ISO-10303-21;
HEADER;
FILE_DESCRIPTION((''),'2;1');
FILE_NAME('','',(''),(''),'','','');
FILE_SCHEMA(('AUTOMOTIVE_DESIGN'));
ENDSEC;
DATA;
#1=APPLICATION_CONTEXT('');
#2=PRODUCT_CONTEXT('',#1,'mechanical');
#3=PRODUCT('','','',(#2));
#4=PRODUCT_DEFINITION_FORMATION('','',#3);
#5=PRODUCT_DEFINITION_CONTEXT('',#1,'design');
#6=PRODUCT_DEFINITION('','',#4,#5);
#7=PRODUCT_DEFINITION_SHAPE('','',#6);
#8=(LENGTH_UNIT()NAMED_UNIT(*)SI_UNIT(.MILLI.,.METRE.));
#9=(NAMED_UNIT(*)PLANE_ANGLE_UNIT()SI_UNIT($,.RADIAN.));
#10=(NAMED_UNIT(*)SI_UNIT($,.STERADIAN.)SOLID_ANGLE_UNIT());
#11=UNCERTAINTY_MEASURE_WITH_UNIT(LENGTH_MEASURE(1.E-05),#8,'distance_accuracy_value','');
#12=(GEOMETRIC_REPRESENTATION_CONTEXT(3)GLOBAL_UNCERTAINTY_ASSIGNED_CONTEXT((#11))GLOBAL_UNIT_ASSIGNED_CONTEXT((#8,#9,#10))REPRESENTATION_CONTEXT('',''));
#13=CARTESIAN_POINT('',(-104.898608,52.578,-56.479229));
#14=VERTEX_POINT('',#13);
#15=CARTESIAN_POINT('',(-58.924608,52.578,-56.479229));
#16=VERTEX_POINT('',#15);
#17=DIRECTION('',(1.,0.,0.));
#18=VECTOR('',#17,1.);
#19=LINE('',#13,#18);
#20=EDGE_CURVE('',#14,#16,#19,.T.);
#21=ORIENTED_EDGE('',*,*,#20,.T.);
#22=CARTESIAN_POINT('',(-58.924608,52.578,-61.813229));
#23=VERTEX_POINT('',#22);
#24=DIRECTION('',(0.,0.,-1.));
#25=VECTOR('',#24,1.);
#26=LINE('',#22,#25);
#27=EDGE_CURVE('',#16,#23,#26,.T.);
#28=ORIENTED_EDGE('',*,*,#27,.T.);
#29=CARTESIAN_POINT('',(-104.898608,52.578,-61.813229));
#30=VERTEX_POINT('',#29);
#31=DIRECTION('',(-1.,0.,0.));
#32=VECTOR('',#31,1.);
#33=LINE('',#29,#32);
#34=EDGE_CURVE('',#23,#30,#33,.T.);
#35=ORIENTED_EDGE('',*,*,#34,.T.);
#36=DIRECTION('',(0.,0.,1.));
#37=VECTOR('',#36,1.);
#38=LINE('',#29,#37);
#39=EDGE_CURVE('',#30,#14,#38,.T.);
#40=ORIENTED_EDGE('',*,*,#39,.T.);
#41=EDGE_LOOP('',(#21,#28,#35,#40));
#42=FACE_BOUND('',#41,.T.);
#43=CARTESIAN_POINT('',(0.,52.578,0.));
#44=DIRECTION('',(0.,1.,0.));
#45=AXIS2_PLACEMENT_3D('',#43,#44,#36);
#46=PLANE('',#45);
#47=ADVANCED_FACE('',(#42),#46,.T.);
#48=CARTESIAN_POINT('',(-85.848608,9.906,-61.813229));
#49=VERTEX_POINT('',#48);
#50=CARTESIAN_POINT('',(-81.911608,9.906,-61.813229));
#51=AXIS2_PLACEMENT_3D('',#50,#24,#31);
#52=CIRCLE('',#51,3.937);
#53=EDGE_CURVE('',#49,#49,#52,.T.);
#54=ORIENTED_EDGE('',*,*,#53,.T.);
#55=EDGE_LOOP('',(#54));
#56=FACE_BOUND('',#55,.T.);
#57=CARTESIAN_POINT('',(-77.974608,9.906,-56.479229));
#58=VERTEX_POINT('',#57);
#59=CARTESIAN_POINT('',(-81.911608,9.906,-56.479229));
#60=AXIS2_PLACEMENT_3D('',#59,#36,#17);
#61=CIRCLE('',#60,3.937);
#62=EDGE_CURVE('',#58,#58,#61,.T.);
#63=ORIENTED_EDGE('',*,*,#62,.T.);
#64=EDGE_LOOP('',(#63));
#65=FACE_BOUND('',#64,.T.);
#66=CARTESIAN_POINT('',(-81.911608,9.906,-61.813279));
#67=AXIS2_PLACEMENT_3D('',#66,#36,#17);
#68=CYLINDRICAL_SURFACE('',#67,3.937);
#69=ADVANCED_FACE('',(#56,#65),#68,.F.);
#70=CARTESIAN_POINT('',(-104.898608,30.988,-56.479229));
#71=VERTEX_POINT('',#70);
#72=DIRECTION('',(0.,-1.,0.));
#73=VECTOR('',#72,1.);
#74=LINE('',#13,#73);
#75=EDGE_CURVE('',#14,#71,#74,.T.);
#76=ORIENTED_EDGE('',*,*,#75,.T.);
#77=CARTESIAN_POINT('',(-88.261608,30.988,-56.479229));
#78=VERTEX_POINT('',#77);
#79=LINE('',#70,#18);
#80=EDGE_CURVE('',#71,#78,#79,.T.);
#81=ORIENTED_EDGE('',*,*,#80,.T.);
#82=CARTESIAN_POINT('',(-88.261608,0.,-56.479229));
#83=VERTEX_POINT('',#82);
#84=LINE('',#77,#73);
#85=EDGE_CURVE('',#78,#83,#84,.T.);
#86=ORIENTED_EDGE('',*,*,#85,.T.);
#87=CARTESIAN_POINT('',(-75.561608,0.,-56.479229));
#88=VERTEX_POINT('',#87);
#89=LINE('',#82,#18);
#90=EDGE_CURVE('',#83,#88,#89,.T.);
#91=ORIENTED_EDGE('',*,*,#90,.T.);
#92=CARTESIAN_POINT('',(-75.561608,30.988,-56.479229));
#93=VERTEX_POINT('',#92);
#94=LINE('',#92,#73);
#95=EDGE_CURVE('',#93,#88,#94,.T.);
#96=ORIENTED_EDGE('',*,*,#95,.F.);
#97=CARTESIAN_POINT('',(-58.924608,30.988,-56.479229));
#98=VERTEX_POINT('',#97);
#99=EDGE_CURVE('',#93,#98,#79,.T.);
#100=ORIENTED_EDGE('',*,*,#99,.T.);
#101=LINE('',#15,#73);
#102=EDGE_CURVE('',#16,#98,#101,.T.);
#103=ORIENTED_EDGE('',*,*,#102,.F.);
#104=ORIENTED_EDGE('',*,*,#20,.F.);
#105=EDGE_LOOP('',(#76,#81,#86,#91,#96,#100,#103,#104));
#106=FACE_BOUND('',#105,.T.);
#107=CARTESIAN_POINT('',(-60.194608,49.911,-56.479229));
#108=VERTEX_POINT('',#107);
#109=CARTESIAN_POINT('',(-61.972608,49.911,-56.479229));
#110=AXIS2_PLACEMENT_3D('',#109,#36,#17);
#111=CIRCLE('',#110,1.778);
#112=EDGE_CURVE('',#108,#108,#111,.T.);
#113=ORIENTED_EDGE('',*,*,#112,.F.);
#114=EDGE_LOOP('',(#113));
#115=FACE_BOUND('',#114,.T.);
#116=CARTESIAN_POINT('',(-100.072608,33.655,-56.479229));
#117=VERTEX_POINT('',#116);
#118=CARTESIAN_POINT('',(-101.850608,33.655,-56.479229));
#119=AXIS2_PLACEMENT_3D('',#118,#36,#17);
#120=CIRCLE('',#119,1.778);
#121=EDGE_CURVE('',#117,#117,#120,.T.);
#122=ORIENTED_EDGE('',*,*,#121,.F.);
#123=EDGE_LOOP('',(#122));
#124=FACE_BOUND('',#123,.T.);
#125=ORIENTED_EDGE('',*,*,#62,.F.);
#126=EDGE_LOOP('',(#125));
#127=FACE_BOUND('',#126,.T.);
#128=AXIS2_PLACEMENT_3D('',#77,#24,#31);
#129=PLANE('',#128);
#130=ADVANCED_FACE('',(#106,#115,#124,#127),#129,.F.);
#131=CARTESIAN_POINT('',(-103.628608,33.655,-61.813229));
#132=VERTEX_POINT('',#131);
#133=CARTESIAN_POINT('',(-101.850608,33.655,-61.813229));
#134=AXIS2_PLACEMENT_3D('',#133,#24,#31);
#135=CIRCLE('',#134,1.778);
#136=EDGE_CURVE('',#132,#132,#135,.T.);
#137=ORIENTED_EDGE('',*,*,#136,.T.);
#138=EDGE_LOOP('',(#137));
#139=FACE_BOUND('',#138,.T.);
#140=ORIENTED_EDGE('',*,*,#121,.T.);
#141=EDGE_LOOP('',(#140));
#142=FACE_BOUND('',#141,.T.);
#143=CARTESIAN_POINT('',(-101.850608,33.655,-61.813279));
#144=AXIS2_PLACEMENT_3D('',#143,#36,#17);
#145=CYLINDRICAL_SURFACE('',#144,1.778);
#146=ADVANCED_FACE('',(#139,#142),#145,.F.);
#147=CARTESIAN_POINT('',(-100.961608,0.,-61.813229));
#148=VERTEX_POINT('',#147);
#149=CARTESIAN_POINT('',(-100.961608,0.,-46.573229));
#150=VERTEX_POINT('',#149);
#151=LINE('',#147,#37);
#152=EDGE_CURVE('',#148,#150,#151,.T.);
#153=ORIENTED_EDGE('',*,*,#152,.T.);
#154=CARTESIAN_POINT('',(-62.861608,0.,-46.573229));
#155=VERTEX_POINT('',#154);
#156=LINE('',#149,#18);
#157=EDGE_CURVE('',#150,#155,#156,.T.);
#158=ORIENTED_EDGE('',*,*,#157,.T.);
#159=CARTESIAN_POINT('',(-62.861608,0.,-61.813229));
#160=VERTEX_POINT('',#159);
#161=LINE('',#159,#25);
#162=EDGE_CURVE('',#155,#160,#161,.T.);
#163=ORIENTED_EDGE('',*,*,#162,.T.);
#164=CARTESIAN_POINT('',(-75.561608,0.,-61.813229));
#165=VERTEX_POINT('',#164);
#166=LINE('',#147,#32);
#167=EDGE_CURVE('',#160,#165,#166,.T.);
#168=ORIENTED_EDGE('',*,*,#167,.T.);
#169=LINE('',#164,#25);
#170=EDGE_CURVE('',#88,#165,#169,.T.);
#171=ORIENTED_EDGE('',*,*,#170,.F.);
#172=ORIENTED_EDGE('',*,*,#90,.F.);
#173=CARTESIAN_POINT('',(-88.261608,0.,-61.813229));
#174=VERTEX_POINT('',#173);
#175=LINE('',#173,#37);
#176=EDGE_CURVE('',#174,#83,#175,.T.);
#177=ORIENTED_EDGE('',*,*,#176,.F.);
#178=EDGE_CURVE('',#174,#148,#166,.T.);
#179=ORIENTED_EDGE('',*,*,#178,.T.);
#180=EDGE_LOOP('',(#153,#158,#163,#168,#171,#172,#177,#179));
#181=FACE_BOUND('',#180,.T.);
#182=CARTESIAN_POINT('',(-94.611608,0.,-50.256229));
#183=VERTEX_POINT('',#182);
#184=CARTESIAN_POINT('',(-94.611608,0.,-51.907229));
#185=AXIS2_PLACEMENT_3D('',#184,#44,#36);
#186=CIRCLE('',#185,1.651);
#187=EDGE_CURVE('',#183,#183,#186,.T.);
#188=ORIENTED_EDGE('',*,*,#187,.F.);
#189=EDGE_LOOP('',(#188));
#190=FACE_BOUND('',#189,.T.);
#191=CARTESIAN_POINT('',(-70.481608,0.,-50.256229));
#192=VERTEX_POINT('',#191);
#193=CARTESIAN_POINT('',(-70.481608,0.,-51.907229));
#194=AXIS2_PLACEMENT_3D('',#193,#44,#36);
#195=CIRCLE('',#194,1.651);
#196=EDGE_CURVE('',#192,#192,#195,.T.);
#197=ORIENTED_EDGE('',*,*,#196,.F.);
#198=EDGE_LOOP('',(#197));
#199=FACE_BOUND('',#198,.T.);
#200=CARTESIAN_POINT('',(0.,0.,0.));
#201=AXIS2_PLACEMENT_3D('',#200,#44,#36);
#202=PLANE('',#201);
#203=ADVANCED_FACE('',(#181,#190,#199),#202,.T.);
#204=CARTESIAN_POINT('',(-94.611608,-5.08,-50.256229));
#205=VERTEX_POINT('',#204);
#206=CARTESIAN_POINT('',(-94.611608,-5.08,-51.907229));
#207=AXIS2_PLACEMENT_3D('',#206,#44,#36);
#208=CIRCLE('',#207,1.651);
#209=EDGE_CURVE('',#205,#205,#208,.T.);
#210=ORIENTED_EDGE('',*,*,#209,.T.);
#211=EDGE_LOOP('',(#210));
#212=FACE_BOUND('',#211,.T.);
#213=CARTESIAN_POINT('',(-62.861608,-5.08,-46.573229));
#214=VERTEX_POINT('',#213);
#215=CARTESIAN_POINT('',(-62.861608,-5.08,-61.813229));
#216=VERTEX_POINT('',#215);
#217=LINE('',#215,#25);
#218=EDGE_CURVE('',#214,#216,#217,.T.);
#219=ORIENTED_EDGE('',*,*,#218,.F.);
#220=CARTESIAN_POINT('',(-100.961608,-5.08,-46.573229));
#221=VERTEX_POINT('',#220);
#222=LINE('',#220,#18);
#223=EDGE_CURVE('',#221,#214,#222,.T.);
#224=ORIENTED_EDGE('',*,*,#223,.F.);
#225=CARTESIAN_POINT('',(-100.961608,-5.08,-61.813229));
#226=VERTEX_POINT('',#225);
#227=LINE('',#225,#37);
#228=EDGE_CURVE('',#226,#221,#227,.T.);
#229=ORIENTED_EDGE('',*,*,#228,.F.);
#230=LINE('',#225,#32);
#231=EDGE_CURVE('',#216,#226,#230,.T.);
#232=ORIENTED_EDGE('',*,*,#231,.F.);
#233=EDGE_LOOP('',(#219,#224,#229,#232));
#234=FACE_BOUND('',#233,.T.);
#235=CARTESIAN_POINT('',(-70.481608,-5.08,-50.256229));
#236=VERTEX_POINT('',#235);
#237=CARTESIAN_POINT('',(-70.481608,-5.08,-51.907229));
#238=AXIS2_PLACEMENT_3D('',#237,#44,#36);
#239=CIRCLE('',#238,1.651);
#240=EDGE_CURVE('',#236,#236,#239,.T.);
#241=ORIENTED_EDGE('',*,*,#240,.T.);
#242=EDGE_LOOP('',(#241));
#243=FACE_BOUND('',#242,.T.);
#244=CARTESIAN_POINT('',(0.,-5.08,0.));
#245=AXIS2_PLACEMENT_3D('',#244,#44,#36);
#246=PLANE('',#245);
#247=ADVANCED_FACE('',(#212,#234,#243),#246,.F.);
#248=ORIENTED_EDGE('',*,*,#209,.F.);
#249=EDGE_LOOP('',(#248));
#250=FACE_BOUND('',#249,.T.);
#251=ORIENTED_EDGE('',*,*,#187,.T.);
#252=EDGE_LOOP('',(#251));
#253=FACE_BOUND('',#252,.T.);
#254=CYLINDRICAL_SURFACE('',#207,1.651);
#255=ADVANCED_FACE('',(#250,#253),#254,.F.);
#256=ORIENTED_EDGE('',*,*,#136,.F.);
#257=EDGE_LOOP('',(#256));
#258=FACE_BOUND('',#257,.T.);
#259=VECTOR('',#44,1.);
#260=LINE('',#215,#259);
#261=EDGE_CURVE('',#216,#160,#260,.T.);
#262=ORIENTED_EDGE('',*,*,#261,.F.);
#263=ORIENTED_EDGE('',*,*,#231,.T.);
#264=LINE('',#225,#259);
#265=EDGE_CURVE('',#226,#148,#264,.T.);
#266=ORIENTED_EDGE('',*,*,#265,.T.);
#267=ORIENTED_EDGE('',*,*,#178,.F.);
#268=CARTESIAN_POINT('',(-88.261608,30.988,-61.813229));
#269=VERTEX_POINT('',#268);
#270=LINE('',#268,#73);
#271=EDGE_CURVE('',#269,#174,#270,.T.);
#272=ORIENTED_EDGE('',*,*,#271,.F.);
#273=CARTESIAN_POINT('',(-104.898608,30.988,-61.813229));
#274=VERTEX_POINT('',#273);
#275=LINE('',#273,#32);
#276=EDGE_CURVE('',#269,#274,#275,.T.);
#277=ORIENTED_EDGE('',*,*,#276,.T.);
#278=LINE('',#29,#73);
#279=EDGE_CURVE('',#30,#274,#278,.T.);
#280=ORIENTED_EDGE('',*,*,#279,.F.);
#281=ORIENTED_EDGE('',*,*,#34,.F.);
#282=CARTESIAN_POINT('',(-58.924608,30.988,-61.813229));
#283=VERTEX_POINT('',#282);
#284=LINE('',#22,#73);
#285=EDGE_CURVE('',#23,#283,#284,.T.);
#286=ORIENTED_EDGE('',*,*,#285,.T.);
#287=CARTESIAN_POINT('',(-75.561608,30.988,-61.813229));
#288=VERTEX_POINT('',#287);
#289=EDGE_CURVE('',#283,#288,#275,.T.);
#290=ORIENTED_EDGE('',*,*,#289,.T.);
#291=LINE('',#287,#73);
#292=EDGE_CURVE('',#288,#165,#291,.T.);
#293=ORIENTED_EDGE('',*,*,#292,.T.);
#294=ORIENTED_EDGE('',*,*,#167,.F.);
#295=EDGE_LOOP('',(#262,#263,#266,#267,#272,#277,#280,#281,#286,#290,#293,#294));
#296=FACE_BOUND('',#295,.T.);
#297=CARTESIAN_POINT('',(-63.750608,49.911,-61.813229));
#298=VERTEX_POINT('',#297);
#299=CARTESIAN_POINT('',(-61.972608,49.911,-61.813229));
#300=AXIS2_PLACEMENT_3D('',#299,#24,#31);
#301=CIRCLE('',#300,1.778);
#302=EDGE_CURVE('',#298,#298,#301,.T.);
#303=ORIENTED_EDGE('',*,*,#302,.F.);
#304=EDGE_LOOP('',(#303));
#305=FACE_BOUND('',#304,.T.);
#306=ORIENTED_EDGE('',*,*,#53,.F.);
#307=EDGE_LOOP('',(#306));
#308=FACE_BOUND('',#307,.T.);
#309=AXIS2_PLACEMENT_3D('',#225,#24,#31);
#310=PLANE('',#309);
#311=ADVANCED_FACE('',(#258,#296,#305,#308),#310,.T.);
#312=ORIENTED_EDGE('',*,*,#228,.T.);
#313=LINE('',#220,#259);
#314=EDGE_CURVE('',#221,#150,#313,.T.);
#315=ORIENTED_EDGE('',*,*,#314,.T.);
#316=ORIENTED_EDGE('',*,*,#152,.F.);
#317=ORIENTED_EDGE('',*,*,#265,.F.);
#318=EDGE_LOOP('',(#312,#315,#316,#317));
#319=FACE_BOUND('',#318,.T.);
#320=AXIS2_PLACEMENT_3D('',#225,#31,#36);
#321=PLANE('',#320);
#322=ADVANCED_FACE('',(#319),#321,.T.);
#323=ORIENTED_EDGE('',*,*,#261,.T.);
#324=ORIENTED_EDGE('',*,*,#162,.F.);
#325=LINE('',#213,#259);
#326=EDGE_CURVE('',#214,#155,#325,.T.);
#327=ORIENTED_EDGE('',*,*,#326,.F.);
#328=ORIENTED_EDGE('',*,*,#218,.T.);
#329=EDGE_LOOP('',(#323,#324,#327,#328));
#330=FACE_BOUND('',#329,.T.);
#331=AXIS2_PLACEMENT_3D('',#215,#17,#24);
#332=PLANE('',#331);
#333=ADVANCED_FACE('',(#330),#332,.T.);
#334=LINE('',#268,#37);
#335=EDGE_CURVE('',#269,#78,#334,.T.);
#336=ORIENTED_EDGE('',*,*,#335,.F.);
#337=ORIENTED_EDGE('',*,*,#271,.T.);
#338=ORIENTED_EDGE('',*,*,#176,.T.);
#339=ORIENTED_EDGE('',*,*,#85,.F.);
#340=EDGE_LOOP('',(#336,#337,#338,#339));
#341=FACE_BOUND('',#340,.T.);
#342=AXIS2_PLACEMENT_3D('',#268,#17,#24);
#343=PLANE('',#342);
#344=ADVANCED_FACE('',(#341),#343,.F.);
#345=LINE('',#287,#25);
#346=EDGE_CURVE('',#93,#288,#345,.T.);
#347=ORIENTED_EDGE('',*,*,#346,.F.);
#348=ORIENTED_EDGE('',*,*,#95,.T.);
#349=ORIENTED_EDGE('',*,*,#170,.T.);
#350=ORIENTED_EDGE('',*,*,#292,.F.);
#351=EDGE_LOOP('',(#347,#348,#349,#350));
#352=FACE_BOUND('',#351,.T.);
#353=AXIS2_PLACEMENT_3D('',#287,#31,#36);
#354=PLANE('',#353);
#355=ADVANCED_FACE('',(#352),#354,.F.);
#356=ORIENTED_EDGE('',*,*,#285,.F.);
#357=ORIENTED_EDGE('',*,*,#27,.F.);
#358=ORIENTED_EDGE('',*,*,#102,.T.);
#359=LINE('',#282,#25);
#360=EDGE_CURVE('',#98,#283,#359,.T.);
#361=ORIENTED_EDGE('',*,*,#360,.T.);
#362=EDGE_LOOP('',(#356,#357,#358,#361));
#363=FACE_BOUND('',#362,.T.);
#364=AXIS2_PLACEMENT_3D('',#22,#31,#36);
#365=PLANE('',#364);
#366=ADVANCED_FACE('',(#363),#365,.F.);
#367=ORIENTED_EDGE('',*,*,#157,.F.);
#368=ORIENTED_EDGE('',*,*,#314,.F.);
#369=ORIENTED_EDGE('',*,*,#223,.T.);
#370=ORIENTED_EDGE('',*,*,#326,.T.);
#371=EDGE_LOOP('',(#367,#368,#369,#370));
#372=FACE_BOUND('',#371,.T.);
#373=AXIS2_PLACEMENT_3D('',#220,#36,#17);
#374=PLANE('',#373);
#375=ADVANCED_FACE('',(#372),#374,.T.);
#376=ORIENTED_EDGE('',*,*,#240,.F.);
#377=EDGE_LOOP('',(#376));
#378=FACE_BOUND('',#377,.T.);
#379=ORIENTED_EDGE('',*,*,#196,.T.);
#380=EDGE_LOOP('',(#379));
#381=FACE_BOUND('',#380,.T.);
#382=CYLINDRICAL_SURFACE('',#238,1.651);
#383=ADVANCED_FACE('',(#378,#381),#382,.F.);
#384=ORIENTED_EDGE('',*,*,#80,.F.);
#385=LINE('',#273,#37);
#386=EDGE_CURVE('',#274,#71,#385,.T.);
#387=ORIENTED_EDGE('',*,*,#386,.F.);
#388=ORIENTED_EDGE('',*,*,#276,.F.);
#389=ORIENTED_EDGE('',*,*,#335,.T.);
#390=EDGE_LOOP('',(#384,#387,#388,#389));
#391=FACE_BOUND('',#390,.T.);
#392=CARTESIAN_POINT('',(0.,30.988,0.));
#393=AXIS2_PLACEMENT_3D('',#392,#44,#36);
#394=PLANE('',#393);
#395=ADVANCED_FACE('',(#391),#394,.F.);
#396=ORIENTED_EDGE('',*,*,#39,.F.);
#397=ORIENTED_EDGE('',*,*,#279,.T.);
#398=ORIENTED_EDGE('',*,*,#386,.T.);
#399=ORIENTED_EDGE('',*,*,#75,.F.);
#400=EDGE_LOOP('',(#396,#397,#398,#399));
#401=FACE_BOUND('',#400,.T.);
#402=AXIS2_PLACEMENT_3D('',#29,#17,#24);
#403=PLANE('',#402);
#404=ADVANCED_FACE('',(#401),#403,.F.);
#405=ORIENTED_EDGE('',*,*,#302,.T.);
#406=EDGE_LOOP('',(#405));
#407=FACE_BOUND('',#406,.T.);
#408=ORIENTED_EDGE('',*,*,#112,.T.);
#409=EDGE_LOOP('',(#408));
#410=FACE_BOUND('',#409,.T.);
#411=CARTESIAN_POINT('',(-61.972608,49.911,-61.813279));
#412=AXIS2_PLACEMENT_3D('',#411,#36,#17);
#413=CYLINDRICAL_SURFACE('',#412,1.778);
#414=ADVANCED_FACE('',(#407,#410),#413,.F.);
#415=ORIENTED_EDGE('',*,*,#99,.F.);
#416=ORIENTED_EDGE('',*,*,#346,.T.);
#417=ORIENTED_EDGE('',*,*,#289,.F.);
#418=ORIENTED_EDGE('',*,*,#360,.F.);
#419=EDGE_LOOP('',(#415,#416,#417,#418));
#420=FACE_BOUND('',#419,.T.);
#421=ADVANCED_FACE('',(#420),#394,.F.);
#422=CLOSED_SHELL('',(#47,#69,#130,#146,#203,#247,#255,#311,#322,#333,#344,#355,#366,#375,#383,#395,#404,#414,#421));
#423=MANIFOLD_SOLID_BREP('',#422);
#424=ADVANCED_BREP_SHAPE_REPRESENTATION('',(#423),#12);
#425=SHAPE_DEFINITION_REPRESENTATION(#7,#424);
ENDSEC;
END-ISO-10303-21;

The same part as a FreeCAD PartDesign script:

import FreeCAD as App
import Part
import Sketcher

V = App.Vector
Q = App.Units.Quantity

doc = App.newDocument("Part")
body = doc.addObject("PartDesign::Body", "Body")

sketch1 = body.newObject("Sketcher::SketchObject", "Sketch")
sketch1.AttachmentSupport = (doc.getObject("XZ_Plane"), [""])
sketch1.MapMode = "FlatFace"
sketch1.addGeometry([
    Part.LineSegment(V(-101, -62, 0), V(-101, -47, 0)),
    Part.LineSegment(V(-101, -47, 0), V(-63, -47, 0)),
    Part.LineSegment(V(-63, -47, 0), V(-63, -62, 0)),
    Part.LineSegment(V(-63, -62, 0), V(-101, -62, 0)),
], False)
sketch1.addConstraint([
    Sketcher.Constraint("Coincident", 0, 2, 1, 1),
    Sketcher.Constraint("Coincident", 1, 2, 2, 1),
    Sketcher.Constraint("Coincident", 2, 2, 3, 1),
    Sketcher.Constraint("Coincident", 3, 2, 0, 1),
    Sketcher.Constraint("Vertical", 0),
    Sketcher.Constraint("Horizontal", 1),
    Sketcher.Constraint("Vertical", 2),
    Sketcher.Constraint("Horizontal", 3),
    Sketcher.Constraint("DistanceX", 1, 1, 1, 2, Q("1.5 in")),
    Sketcher.Constraint("DistanceY", 0, 1, 0, 2, Q("0.6 in")),
    Sketcher.Constraint("DistanceX", 0, 2, -1, 1, Q("100.961608 mm")),
    Sketcher.Constraint("DistanceY", 0, 2, -1, 1, Q("46.573229 mm")),
])
pad1 = body.newObject("PartDesign::Pad", "Pad")
pad1.Profile = sketch1
pad1.Length = Q("0.2 in")

sketch2 = body.newObject("Sketcher::SketchObject", "Sketch001")
sketch2.AttachmentSupport = (doc.getObject("XZ_Plane"), [""])
sketch2.MapMode = "FlatFace"
sketch2.addGeometry([
    Part.Circle(V(-94.6, -51.9, 0), V(0, 0, 1), 1.7),
    Part.Circle(V(-70.5, -51.9, 0), V(0, 0, 1), 1.7),
], False)
sketch2.addConstraint([
    Sketcher.Constraint("Equal", 0, 1),
    Sketcher.Constraint("Horizontal", 0, 3, 1, 3),
    Sketcher.Constraint("Diameter", 0, Q("0.13 in")),
    Sketcher.Constraint("DistanceX", 0, 3, 1, 3, Q("0.95 in")),
    Sketcher.Constraint("DistanceX", 0, 3, -1, 1, Q("94.611608 mm")),
    Sketcher.Constraint("DistanceY", 0, 3, -1, 1, Q("51.907229 mm")),
])
pocket1 = body.newObject("PartDesign::Pocket", "Pocket")
pocket1.Profile = sketch2
pocket1.Type = "ThroughAll"
pocket1.Reversed = True

sketch3 = body.newObject("Sketcher::SketchObject", "Sketch002")
sketch3.AttachmentSupport = (doc.getObject("XZ_Plane"), [""])
sketch3.MapMode = "FlatFace"
sketch3.addGeometry([
    Part.LineSegment(V(-88, -62, 0), V(-88, -56, 0)),
    Part.LineSegment(V(-88, -56, 0), V(-76, -56, 0)),
    Part.LineSegment(V(-76, -56, 0), V(-76, -62, 0)),
    Part.LineSegment(V(-76, -62, 0), V(-88, -62, 0)),
], False)
sketch3.addConstraint([
    Sketcher.Constraint("Coincident", 0, 2, 1, 1),
    Sketcher.Constraint("Coincident", 1, 2, 2, 1),
    Sketcher.Constraint("Coincident", 2, 2, 3, 1),
    Sketcher.Constraint("Coincident", 3, 2, 0, 1),
    Sketcher.Constraint("Vertical", 0),
    Sketcher.Constraint("Horizontal", 1),
    Sketcher.Constraint("Vertical", 2),
    Sketcher.Constraint("Horizontal", 3),
    Sketcher.Constraint("DistanceX", 1, 1, 1, 2, Q("0.5 in")),
    Sketcher.Constraint("DistanceY", 0, 1, 0, 2, Q("0.21 in")),
    Sketcher.Constraint("DistanceX", 0, 2, -1, 1, Q("88.261608 mm")),
    Sketcher.Constraint("DistanceY", 0, 2, -1, 1, Q("56.479229 mm")),
])
pad2 = body.newObject("PartDesign::Pad", "Pad001")
pad2.Profile = sketch3
pad2.Length = Q("1.22 in")
pad2.Reversed = True

sketch4 = body.newObject("Sketcher::SketchObject", "Sketch003")
sketch4.AttachmentSupport = (doc.getObject("XZ_Plane"), [""])
sketch4.MapMode = "FlatFace"
sketch4.AttachmentOffset = App.Placement(V(0, 0, -1.22 * 25.4), App.Rotation())
sketch4.addGeometry([
    Part.LineSegment(V(-105, -62, 0), V(-105, -56, 0)),
    Part.LineSegment(V(-105, -56, 0), V(-59, -56, 0)),
    Part.LineSegment(V(-59, -56, 0), V(-59, -62, 0)),
    Part.LineSegment(V(-59, -62, 0), V(-105, -62, 0)),
], False)
sketch4.addConstraint([
    Sketcher.Constraint("Coincident", 0, 2, 1, 1),
    Sketcher.Constraint("Coincident", 1, 2, 2, 1),
    Sketcher.Constraint("Coincident", 2, 2, 3, 1),
    Sketcher.Constraint("Coincident", 3, 2, 0, 1),
    Sketcher.Constraint("Vertical", 0),
    Sketcher.Constraint("Horizontal", 1),
    Sketcher.Constraint("Vertical", 2),
    Sketcher.Constraint("Horizontal", 3),
    Sketcher.Constraint("DistanceX", 1, 1, 1, 2, Q("1.81 in")),
    Sketcher.Constraint("DistanceY", 0, 1, 0, 2, Q("0.21 in")),
    Sketcher.Constraint("DistanceX", 0, 2, -1, 1, Q("104.898608 mm")),
    Sketcher.Constraint("DistanceY", 0, 2, -1, 1, Q("56.479229 mm")),
])
pad3 = body.newObject("PartDesign::Pad", "Pad002")
pad3.Profile = sketch4
pad3.Length = Q("0.85 in")
pad3.Reversed = True

sketch5 = body.newObject("Sketcher::SketchObject", "Sketch004")
sketch5.AttachmentSupport = (doc.getObject("XY_Plane"), [""])
sketch5.MapMode = "FlatFace"
sketch5.AttachmentOffset = App.Placement(V(0, 0, -56.479229), App.Rotation())
sketch5.addGeometry([
    Part.Circle(V(-101.9, 33.7, 0), V(0, 0, 1), 1.8),
    Part.Circle(V(-62, 49.9, 0), V(0, 0, 1), 1.8),
], False)
sketch5.addConstraint([
    Sketcher.Constraint("Equal", 0, 1),
    Sketcher.Constraint("Diameter", 0, Q("0.14 in")),
    Sketcher.Constraint("DistanceX", 0, 3, 1, 3, Q("1.57 in")),
    Sketcher.Constraint("DistanceY", 0, 3, 1, 3, Q("0.64 in")),
    Sketcher.Constraint("DistanceY", -1, 1, 0, 3, Q("1.325 in")),
    Sketcher.Constraint("DistanceX", 0, 3, -1, 1, Q("101.850608 mm")),
])
pocket2 = body.newObject("PartDesign::Pocket", "Pocket001")
pocket2.Profile = sketch5
pocket2.Type = "ThroughAll"

sketch6 = body.newObject("Sketcher::SketchObject", "Sketch005")
sketch6.AttachmentSupport = (doc.getObject("XY_Plane"), [""])
sketch6.MapMode = "FlatFace"
sketch6.AttachmentOffset = App.Placement(V(0, 0, -56.479229), App.Rotation())
sketch6.addGeometry(Part.Circle(V(-81.9, 9.9, 0), V(0, 0, 1), 3.9), False)
sketch6.addConstraint([
    Sketcher.Constraint("Diameter", 0, Q("0.31 in")),
    Sketcher.Constraint("DistanceY", -1, 1, 0, 3, Q("0.39 in")),
    Sketcher.Constraint("DistanceX", 0, 3, -1, 1, Q("81.911608 mm")),
])
pocket3 = body.newObject("PartDesign::Pocket", "Pocket002")
pocket3.Profile = sketch6
pocket3.Type = "ThroughAll"

doc.recompute()
